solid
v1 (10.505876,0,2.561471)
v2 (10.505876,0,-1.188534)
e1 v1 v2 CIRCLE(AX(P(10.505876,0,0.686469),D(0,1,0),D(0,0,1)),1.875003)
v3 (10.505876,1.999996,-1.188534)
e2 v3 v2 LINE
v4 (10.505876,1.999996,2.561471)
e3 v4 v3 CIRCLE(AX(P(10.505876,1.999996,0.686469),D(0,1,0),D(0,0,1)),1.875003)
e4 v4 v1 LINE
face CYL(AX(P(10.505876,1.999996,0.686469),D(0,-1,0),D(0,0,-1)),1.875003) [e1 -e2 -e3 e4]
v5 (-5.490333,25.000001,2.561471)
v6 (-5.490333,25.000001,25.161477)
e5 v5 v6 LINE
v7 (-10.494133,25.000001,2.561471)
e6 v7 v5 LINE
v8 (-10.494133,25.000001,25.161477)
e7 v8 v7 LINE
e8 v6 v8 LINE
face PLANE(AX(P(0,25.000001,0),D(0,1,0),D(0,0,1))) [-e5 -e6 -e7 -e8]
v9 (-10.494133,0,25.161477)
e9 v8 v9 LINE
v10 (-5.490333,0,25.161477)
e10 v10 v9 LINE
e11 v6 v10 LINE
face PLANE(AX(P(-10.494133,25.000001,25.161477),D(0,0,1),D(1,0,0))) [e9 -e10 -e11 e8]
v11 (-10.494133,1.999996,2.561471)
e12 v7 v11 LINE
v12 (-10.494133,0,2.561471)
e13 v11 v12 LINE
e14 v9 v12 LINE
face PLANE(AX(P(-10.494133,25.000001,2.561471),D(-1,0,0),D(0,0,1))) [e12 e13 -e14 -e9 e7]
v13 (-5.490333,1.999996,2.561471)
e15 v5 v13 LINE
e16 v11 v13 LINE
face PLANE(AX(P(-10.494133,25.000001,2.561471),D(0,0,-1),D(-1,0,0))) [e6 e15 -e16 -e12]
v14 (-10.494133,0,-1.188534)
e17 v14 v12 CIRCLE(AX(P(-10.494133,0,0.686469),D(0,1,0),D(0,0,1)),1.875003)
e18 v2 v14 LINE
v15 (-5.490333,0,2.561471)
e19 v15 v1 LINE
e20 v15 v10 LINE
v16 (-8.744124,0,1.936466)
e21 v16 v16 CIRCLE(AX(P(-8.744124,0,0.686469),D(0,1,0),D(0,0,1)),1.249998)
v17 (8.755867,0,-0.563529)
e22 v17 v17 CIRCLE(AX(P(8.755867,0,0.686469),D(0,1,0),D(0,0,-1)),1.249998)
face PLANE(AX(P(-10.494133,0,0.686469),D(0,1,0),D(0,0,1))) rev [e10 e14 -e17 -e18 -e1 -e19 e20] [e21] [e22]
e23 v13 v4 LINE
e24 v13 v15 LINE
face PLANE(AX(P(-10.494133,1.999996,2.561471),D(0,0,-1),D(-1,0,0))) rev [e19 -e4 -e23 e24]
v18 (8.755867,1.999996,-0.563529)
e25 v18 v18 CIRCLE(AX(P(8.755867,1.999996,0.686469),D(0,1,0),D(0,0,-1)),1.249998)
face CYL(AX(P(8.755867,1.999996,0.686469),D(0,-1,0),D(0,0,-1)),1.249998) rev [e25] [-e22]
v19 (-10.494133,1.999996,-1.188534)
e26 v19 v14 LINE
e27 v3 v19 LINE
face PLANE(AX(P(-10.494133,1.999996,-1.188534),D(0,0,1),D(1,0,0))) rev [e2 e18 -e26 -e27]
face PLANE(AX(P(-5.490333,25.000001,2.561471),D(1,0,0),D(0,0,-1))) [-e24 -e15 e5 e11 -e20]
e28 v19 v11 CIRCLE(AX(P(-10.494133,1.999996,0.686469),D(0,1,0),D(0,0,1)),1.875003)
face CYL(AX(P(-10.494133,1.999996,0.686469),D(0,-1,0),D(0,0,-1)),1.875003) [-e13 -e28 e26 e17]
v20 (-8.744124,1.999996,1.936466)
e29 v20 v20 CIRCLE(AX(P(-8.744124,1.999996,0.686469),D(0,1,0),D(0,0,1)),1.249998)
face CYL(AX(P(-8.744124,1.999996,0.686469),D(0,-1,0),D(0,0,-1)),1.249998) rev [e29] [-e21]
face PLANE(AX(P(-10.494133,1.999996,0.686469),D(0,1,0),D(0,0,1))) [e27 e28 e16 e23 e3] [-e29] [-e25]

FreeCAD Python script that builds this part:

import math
import FreeCAD as App
import Part
import Sketcher

V = App.Vector

doc = App.newDocument("Part")
body = doc.addObject("PartDesign::Body", "Body")

# Sketch on XZ plane
sketch1 = body.newObject("Sketcher::SketchObject", "Sketch")
sketch1.AttachmentSupport = (doc.getObject("XZ_Plane"), [""])
sketch1.MapMode = "FlatFace"
sketch1.addGeometry([
    Part.LineSegment(V(10.5, -1.2, 0), V(-10.5, -1.2, 0)),  # 0
    Part.ArcOfCircle(Part.Circle(V(-10.5, 0.7, 0), V(0, 0, 1), 1.9), math.radians(90), math.radians(270)),  # 1
    Part.LineSegment(V(-10.5, 2.6, 0), V(10.5, 2.6, 0)),  # 2
    Part.ArcOfCircle(Part.Circle(V(10.5, 0.7, 0), V(0, 0, 1), 1.9), math.radians(-90), math.radians(90)),  # 3
    Part.Circle(V(8.8, 0.7, 0), V(0, 0, 1), 1.2),  # 4
    Part.Circle(V(-8.7, 0.7, 0), V(0, 0, 1), 1.2),  # 5
], False)
sketch1.addConstraint([
    Sketcher.Constraint("Tangent", 0, 2, 1, 2),
    Sketcher.Constraint("Tangent", 1, 1, 2, 1),
    Sketcher.Constraint("Tangent", 2, 2, 3, 2),
    Sketcher.Constraint("Tangent", 3, 1, 0, 1),
    Sketcher.Constraint("Horizontal", 0),
    Sketcher.Constraint("Horizontal", 2),
    Sketcher.Constraint("Equal", 4, 5),
    Sketcher.Constraint("Horizontal", 3, 3, 4, 3),
    Sketcher.Constraint("Horizontal", 4, 3, 5, 3),
    Sketcher.Constraint("DistanceX", 1, 3, 4, 3, 19.25),
    Sketcher.Constraint("DistanceX", 5, 3, 3, 3, 19.25),
    Sketcher.Constraint("Diameter", 4, 2.499995),
    Sketcher.Constraint("Radius", 1, 1.875003),
    Sketcher.Constraint("DistanceX", 0, 2, 0, 1, 21.000009),
    Sketcher.Constraint("DistanceY", -1, 1, 1, 3, 0.686469),
    Sketcher.Constraint("DistanceX", 1, 3, -1, 1, 10.494133),
])
pad1 = body.newObject("PartDesign::Pad", "Pad")
pad1.Profile = sketch1
pad1.Length = 1.999996
pad1.Reversed = True

# Sketch on XZ plane
sketch2 = body.newObject("Sketcher::SketchObject", "Sketch001")
sketch2.AttachmentSupport = (doc.getObject("XZ_Plane"), [""])
sketch2.MapMode = "FlatFace"
sketch2.addGeometry([
    Part.LineSegment(V(-10, 25, 0), V(-10, 3, 0)),
    Part.LineSegment(V(-10, 3, 0), V(-5, 3, 0)),
    Part.LineSegment(V(-5, 3, 0), V(-5, 25, 0)),
    Part.LineSegment(V(-5, 25, 0), V(-10, 25, 0)),
], False)
sketch2.addConstraint([
    Sketcher.Constraint("Coincident", 0, 2, 1, 1),
    Sketcher.Constraint("Coincident", 1, 2, 2, 1),
    Sketcher.Constraint("Coincident", 2, 2, 3, 1),
    Sketcher.Constraint("Coincident", 3, 2, 0, 1),
    Sketcher.Constraint("Vertical", 0),
    Sketcher.Constraint("Horizontal", 1),
    Sketcher.Constraint("Vertical", 2),
    Sketcher.Constraint("Horizontal", 3),
    Sketcher.Constraint("DistanceX", 1, 1, 1, 2, 5.0038),
    Sketcher.Constraint("DistanceY", 0, 2, 0, 1, 22.600006),
    Sketcher.Constraint("DistanceY", -1, 1, 0, 2, 2.561471),
    Sketcher.Constraint("DistanceX", 0, 2, -1, 1, 10.494133),
])
pad2 = body.newObject("PartDesign::Pad", "Pad001")
pad2.Profile = sketch2
pad2.Length = 25.000001
pad2.Reversed = True

doc.recompute()
